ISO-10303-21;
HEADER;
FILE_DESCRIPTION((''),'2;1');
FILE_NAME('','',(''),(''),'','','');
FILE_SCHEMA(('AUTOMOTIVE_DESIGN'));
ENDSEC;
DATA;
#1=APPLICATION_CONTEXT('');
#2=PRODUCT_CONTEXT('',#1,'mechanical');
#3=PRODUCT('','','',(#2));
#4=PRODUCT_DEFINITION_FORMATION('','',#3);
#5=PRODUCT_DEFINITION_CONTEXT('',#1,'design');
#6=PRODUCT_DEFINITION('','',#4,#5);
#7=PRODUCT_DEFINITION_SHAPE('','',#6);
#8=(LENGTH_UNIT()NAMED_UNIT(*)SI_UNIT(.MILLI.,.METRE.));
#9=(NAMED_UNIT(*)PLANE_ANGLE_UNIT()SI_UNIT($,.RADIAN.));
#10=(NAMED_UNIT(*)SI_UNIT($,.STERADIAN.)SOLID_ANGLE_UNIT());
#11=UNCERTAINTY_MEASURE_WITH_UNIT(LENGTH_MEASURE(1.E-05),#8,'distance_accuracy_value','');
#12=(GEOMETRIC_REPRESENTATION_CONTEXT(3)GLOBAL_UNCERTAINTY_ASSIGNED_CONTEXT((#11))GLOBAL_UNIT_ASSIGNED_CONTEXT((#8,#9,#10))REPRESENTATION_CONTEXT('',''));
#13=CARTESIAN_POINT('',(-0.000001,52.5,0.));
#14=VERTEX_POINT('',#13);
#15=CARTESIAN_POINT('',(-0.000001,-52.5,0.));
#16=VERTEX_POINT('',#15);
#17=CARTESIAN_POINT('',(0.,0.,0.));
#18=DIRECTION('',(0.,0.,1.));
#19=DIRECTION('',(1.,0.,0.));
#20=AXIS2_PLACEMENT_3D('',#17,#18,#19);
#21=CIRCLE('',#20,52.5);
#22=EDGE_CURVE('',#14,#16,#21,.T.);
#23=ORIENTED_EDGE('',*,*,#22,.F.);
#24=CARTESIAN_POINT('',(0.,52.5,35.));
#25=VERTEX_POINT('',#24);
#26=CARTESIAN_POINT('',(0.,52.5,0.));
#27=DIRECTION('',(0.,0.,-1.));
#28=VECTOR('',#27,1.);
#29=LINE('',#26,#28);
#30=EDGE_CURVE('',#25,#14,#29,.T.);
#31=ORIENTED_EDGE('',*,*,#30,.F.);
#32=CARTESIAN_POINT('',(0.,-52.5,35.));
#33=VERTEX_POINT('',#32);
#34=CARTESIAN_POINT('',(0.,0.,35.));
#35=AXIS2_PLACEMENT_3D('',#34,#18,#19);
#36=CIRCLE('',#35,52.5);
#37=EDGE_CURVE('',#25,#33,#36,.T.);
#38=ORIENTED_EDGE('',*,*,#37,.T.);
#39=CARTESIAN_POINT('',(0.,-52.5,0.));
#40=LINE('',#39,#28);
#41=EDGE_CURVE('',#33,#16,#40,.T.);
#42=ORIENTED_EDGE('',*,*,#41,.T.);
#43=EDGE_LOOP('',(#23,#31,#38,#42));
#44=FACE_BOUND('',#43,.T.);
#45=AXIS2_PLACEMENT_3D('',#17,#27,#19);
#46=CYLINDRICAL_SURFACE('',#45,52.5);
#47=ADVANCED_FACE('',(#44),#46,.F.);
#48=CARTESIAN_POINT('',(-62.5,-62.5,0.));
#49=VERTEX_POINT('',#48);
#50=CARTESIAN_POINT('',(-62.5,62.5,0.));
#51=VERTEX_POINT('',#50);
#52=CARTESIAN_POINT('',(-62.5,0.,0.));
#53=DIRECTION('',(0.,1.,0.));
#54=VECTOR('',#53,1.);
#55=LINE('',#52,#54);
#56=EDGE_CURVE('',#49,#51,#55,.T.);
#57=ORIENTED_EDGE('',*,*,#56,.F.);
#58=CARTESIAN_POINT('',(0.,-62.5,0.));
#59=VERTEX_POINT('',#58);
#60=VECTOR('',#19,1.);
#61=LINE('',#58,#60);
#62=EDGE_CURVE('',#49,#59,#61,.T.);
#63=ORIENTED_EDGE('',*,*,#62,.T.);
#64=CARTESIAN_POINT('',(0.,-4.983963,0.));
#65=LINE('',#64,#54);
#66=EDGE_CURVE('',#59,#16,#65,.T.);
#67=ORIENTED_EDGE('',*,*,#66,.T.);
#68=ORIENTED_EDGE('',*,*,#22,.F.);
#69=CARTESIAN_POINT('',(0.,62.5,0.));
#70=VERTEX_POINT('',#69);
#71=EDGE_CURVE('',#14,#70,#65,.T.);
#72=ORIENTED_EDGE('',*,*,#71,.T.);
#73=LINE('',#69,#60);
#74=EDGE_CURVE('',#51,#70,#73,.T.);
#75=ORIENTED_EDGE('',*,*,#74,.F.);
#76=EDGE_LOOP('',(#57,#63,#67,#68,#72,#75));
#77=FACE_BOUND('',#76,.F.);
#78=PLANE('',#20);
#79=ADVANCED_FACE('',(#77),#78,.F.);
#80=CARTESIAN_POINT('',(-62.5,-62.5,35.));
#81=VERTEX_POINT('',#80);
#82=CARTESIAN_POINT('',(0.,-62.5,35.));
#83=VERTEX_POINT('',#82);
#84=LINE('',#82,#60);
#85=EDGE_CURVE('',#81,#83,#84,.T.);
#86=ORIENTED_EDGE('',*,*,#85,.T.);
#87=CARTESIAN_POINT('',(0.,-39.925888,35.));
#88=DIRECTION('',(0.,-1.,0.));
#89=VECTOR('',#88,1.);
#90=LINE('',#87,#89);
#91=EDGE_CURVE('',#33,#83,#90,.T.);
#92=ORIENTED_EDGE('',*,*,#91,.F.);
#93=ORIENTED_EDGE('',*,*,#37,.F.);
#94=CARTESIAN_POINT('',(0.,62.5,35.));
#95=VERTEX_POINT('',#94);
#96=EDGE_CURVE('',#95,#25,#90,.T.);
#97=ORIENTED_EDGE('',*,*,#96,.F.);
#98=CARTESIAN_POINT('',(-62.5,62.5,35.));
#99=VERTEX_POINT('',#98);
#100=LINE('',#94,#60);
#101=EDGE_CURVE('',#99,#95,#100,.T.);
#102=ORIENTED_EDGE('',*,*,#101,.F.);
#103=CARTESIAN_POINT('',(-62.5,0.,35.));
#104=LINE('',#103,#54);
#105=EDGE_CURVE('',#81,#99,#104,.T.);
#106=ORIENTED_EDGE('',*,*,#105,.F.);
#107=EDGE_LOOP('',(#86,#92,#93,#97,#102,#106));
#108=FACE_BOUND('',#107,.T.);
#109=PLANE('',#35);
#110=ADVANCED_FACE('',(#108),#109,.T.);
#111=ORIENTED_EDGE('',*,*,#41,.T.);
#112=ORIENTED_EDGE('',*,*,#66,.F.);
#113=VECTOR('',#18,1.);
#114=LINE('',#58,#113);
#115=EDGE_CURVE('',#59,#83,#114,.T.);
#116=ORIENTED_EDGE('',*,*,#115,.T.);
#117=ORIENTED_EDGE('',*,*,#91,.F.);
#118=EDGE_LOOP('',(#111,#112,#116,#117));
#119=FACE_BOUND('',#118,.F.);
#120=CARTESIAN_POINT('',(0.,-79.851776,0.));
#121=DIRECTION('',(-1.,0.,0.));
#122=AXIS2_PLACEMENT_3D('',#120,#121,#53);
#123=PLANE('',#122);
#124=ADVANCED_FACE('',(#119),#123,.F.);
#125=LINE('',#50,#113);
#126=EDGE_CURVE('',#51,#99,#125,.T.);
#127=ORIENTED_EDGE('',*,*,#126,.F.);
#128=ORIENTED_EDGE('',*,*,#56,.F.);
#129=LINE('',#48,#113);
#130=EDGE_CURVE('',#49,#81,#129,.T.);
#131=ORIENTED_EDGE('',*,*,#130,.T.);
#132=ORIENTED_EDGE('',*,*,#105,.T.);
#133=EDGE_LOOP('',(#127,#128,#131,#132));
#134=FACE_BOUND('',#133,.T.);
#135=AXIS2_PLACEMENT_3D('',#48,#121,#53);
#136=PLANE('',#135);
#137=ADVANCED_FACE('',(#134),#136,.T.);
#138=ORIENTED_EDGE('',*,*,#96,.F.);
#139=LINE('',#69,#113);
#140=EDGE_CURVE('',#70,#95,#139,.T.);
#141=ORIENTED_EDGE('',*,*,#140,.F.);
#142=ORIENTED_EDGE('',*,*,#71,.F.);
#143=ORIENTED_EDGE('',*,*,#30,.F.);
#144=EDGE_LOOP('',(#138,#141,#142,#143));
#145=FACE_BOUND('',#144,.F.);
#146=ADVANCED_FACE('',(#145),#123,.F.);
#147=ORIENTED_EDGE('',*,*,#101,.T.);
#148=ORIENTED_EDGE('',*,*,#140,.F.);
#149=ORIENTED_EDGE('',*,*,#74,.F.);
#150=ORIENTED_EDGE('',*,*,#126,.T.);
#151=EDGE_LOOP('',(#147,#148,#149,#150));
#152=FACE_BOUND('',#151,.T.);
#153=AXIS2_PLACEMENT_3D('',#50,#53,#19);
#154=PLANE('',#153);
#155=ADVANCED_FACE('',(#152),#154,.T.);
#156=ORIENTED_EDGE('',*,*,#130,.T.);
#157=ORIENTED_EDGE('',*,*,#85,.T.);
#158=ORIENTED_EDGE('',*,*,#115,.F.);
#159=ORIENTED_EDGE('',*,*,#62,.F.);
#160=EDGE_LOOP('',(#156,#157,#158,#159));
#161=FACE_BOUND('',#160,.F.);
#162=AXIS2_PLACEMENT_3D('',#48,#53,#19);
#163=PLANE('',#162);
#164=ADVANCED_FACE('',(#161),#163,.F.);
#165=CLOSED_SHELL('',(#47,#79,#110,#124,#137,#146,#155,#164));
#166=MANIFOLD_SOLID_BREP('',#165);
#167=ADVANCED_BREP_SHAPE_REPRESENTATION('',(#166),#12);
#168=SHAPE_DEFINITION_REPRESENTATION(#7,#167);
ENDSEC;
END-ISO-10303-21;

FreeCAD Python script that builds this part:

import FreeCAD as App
import Part
import Sketcher


def add_polygon(sketch, points):
    """Adds a closed chain of lines whose ends are joined by coincident constraints."""
    first, n = sketch.GeometryCount, len(points)
    for a, b in zip(points, points[1:] + points[:1]):
        sketch.addGeometry(Part.LineSegment(App.Vector(*a, 0), App.Vector(*b, 0)), False)
    for i in range(n):
        sketch.addConstraint(Sketcher.Constraint("Coincident", first + i, 2, first + (i + 1) % n, 1))

doc = App.newDocument("Part")
params = doc.addObject("Spreadsheet::Sheet", "Params")
for row, (alias, value) in enumerate([
    ("sketch1_diameter", "105 mm"),
    ("sketch1_width", "125 mm"),
    ("pad1_length", "35 mm"),
], start=1):
    params.set(f"A{row}", alias)
    params.set(f"B{row}", "=" + value)
    params.setAlias(f"B{row}", alias)

body = doc.addObject("PartDesign::Body", "Body")

sketch1 = doc.addObject("Sketcher::SketchObject", "Sketch")
body.addObject(sketch1)
sketch1.AttachmentSupport = (doc.XY_Plane, [""])
sketch1.MapMode = "FlatFace"
add_polygon(sketch1, [(-62, 62), (-62, -62), (62, -62), (62, 62)])
sketch1.addGeometry(Part.Circle(App.Vector(0, 0, 0), App.Vector(0, 0, 1), 52), False)
sketch1.addConstraint(Sketcher.Constraint("Vertical", 0))
sketch1.addConstraint(Sketcher.Constraint("Horizontal", 1))
sketch1.addConstraint(Sketcher.Constraint("Vertical", 2))
sketch1.addConstraint(Sketcher.Constraint("Horizontal", 3))
sketch1.addConstraint(Sketcher.Constraint("Coincident", 4, 3, -1, 1))
sketch1.addConstraint(Sketcher.Constraint("Symmetric", 0, 2, 2, 2, -1, 1))
sketch1.addConstraint(Sketcher.Constraint("Equal", 3, 0))
sketch1.addConstraint(Sketcher.Constraint("Diameter", 4, 105.0))
sketch1.addConstraint(Sketcher.Constraint("DistanceX", 1, 1, 1, 2, 125.0))
sketch1.setExpression("Constraints[11]", "Params.sketch1_diameter")
sketch1.setExpression("Constraints[12]", "Params.sketch1_width")
pad1 = doc.addObject("PartDesign::Pad", "Pad")
body.addObject(pad1)
pad1.Profile = sketch1
pad1.setExpression("Length", "Params.pad1_length")

sketch2 = doc.addObject("Sketcher::SketchObject", "Sketch001")
body.addObject(sketch2)
sketch2.AttachmentSupport = (doc.XY_Plane, [""])
sketch2.MapMode = "FlatFace"
add_polygon(sketch2, [(0, 70), (0, -80), (132, -80), (132, 70)])
sketch2.addConstraint(Sketcher.Constraint("Vertical", 0))
sketch2.addConstraint(Sketcher.Constraint("Horizontal", 1))
sketch2.addConstraint(Sketcher.Constraint("Vertical", 2))
sketch2.addConstraint(Sketcher.Constraint("Horizontal", 3))
sketch2.addConstraint(Sketcher.Constraint("PointOnObject", 0, 2, -2))
sketch2.addConstraint(Sketcher.Constraint("DistanceX", 1, 1, 1, 2, 131.958801))
sketch2.addConstraint(Sketcher.Constraint("DistanceY", 0, 2, 0, 1, 149.735626))
sketch2.addConstraint(Sketcher.Constraint("DistanceY", -1, 1, 2, 2, 69.88385))
pocket1 = doc.addObject("PartDesign::Pocket", "Pocket")
body.addObject(pocket1)
pocket1.Profile = sketch2
pocket1.Type = "ThroughAll"
pocket1.Reversed = True

doc.recompute()
